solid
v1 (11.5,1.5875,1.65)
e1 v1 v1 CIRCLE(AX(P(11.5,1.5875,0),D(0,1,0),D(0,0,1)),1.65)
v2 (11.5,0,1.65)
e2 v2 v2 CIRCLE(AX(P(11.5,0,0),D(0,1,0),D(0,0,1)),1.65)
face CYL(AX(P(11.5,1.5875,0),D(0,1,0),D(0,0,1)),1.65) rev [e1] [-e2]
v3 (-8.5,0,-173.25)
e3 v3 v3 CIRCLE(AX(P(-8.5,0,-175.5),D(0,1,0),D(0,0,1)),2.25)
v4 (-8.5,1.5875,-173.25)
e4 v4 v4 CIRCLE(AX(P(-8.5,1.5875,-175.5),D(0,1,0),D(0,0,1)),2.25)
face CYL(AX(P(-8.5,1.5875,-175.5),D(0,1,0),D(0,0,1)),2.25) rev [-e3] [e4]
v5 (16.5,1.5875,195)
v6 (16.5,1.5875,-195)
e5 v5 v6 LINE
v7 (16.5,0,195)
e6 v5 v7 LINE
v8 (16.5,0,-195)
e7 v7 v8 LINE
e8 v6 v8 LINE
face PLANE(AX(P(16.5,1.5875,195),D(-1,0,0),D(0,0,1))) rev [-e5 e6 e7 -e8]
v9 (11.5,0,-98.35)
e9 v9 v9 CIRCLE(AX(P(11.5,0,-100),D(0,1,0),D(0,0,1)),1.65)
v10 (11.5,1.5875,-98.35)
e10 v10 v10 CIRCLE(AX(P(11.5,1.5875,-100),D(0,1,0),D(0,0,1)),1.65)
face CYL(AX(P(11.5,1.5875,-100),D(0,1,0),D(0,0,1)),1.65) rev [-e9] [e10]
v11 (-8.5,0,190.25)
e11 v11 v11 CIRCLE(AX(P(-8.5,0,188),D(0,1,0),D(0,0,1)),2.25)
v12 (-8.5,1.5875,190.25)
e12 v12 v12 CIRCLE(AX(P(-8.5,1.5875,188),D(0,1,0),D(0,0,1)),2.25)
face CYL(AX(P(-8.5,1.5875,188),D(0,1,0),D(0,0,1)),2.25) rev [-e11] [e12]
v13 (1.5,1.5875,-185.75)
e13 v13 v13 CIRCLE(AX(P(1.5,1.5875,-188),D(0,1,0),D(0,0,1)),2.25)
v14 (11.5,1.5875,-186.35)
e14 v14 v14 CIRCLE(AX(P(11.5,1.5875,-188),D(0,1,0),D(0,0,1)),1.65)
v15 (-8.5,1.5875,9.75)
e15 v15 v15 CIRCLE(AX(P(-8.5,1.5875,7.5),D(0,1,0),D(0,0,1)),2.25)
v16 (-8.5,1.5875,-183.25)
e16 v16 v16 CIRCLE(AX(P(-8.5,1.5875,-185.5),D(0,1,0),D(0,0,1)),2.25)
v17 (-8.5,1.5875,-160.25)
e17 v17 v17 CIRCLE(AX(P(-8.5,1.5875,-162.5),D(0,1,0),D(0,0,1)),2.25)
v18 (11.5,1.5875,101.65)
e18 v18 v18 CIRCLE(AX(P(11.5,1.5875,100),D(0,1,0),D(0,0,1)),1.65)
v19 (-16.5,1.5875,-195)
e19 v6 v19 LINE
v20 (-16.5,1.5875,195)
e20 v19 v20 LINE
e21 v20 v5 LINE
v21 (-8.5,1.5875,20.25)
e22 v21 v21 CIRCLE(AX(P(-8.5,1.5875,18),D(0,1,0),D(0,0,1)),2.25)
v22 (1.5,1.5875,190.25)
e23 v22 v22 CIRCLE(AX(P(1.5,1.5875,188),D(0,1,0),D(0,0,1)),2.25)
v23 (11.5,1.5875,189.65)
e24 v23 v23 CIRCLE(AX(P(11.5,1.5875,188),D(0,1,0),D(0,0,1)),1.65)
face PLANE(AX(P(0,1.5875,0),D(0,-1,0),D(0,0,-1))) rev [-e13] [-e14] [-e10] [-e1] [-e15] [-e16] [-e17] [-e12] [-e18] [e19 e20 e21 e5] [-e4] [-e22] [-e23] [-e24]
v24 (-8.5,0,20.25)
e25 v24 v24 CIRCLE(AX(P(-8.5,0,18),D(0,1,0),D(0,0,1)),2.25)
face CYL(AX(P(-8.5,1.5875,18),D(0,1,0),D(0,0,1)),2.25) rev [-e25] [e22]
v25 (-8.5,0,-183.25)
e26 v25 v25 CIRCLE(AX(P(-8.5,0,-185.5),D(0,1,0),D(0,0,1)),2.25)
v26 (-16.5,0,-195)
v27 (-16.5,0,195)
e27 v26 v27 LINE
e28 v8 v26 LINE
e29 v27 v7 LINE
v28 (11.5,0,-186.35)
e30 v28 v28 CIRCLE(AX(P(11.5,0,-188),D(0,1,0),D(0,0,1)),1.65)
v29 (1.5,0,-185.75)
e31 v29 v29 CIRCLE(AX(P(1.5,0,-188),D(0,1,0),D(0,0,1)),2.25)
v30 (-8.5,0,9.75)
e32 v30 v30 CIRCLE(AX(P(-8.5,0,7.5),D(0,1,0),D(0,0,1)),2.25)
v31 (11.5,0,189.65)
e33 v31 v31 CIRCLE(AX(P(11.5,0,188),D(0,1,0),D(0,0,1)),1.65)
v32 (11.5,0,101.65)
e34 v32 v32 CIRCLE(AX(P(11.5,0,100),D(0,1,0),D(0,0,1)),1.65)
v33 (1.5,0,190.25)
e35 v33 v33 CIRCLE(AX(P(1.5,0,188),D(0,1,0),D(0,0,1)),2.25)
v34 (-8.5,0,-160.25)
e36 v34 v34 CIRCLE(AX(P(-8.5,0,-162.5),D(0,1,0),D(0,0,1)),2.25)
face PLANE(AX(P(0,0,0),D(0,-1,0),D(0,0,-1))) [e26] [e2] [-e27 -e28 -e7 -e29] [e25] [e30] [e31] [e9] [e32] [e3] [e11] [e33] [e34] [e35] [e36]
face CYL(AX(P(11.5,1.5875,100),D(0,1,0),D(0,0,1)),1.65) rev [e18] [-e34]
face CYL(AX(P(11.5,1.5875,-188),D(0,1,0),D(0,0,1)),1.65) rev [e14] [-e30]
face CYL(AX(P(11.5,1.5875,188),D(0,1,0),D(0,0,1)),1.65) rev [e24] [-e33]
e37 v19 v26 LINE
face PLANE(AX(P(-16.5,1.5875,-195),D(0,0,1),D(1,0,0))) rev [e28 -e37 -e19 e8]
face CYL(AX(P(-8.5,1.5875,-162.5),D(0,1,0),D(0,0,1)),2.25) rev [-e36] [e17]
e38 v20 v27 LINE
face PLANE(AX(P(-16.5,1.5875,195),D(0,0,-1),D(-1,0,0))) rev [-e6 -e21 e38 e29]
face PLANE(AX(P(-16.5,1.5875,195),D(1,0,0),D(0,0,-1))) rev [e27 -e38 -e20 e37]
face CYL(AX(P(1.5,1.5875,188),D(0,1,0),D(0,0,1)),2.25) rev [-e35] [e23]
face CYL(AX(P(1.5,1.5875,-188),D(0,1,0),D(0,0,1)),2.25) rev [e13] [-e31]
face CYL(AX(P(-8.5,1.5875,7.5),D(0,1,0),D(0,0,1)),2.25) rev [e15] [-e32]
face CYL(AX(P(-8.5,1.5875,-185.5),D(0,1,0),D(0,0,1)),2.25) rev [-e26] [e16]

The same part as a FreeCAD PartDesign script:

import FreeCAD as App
import Part
import Sketcher

doc = App.newDocument("Part")
params = doc.addObject("Spreadsheet::Sheet", "Params")
for row, (alias, value) in enumerate([
    ("sketch1_width", "33 mm"),
    ("sketch1_height", "390 mm"),
    ("pad1_length", "1.5875 mm"),
    ("sketch2_diameter", "4.5 mm"),
    ("hole_diameter", "4.5 mm"),
    ("sketch3_diameter", "3.3 mm"),
    ("hole2_diameter", "3.3 mm"),
], start=1):
    params.set(f"A{row}", alias)
    params.set(f"B{row}", "=" + value)
    params.setAlias(f"B{row}", alias)

body = doc.addObject("PartDesign::Body", "Body")

# Sketch on XZ plane
sketch1 = body.newObject("Sketcher::SketchObject", "Sketch")
sketch1.AttachmentSupport = (doc.getObject("XZ_Plane"), [""])
sketch1.MapMode = "FlatFace"
sketch1.addGeometry([
    Part.LineSegment(App.Vector(-16.5, -195, 0), App.Vector(-16.5, 195, 0)),
    Part.LineSegment(App.Vector(-16.5, 195, 0), App.Vector(16.5, 195, 0)),
    Part.LineSegment(App.Vector(16.5, 195, 0), App.Vector(16.5, -195, 0)),
    Part.LineSegment(App.Vector(16.5, -195, 0), App.Vector(-16.5, -195, 0)),
], False)
sketch1.addConstraint([
    Sketcher.Constraint("Coincident", 0, 2, 1, 1),
    Sketcher.Constraint("Coincident", 1, 2, 2, 1),
    Sketcher.Constraint("Coincident", 2, 2, 3, 1),
    Sketcher.Constraint("Coincident", 3, 2, 0, 1),
    Sketcher.Constraint("Vertical", 0),
    Sketcher.Constraint("Horizontal", 1),
    Sketcher.Constraint("Vertical", 2),
    Sketcher.Constraint("Horizontal", 3),
    Sketcher.Constraint("Symmetric", 0, 2, 2, 2, -1, 1),
    Sketcher.Constraint("DistanceX", 1, 1, 1, 2, 33.0),
    Sketcher.Constraint("DistanceY", 0, 1, 0, 2, 390.0),
])
sketch1.setExpression("Constraints[9]", "Params.sketch1_width")
sketch1.setExpression("Constraints[10]", "Params.sketch1_height")
pad1 = body.newObject("PartDesign::Pad", "Pad")
pad1.Profile = sketch1
pad1.setExpression("Length", "Params.pad1_length")
pad1.Reversed = True

# Sketch on XZ plane
sketch2 = body.newObject("Sketcher::SketchObject", "Sketch001")
sketch2.AttachmentSupport = (doc.getObject("XZ_Plane"), [""])
sketch2.MapMode = "FlatFace"
sketch2.AttachmentOffset = App.Placement(App.Vector(0, 0, -1.5875), App.Rotation())
sketch2.addGeometry([
    Part.Circle(App.Vector(1.5, -188, 0), App.Vector(0, 0, 1), 2.25),  # 0
    Part.Circle(App.Vector(-8.5, -185.5, 0), App.Vector(0, 0, 1), 2.25),  # 1
    Part.Circle(App.Vector(-8.5, -175.5, 0), App.Vector(0, 0, 1), 2.25),  # 2
    Part.Circle(App.Vector(-8.5, -162.5, 0), App.Vector(0, 0, 1), 2.25),  # 3
    Part.Circle(App.Vector(-8.5, 7.5, 0), App.Vector(0, 0, 1), 2.25),  # 4
    Part.Circle(App.Vector(-8.5, 18, 0), App.Vector(0, 0, 1), 2.25),  # 5
    Part.Circle(App.Vector(-8.5, 188, 0), App.Vector(0, 0, 1), 2.25),  # 6
    Part.Circle(App.Vector(1.5, 188, 0), App.Vector(0, 0, 1), 2.25),  # 7
], False)
sketch2.addConstraint([
    Sketcher.Constraint("Equal", 0, 1),
    Sketcher.Constraint("Equal", 1, 2),
    Sketcher.Constraint("Equal", 2, 3),
    Sketcher.Constraint("Equal", 3, 4),
    Sketcher.Constraint("Equal", 4, 5),
    Sketcher.Constraint("Equal", 5, 6),
    Sketcher.Constraint("Equal", 6, 7),
    Sketcher.Constraint("Symmetric", 0, 3, 7, 3, -1),
    Sketcher.Constraint("Horizontal", 6, 3, 7, 3),
    Sketcher.Constraint("Vertical", 1, 3, 2, 3),
    Sketcher.Constraint("Vertical", 2, 3, 3, 3),
    Sketcher.Constraint("Vertical", 3, 3, 4, 3),
    Sketcher.Constraint("Vertical", 4, 3, 5, 3),
    Sketcher.Constraint("Vertical", 5, 3, 6, 3),
    Sketcher.Constraint("Diameter", 0, 4.5),
    Sketcher.Constraint("DistanceY", 0, 3, -1, 1, 188.0),
    Sketcher.Constraint("DistanceY", -1, 1, 5, 3, 18.0),
    Sketcher.Constraint("DistanceX", 1, 3, 0, 3, 10.0),
    Sketcher.Constraint("DistanceY", 1, 3, 2, 3, 10.0),
    Sketcher.Constraint("DistanceY", 2, 3, 3, 3, 13.0),
    Sketcher.Constraint("DistanceY", 3, 3, 4, 3, 170.0),
    Sketcher.Constraint("DistanceX", -1, 1, 0, 3, 1.5),
    Sketcher.Constraint("DistanceY", 1, 3, -1, 1, 185.5),
])
sketch2.setExpression("Constraints[14]", "Params.sketch2_diameter")
doc.recompute()
hole = body.newObject("PartDesign::Hole", "Hole")
hole.Profile = sketch2
hole.ThreadType = "None"
hole.setExpression("Diameter", "Params.hole_diameter")
hole.DepthType = "ThroughAll"
hole.Reversed = True

# Sketch on XZ plane
sketch3 = body.newObject("Sketcher::SketchObject", "Sketch002")
sketch3.AttachmentSupport = (doc.getObject("XZ_Plane"), [""])
sketch3.MapMode = "FlatFace"
sketch3.AttachmentOffset = App.Placement(App.Vector(0, 0, -1.5875), App.Rotation())
sketch3.addGeometry([
    Part.Circle(App.Vector(11.5, -188, 0), App.Vector(0, 0, 1), 1.65),  # 0
    Part.Circle(App.Vector(11.5, 188, 0), App.Vector(0, 0, 1), 1.65),  # 1
    Part.Circle(App.Vector(11.5, -100, 0), App.Vector(0, 0, 1), 1.65),  # 2
    Part.Circle(App.Vector(11.5, 100, 0), App.Vector(0, 0, 1), 1.65),  # 3
    Part.Circle(App.Vector(11.5, 0, 0), App.Vector(0, 0, 1), 1.65),  # 4
], False)
sketch3.addConstraint([
    Sketcher.Constraint("Equal", 0, 1),
    Sketcher.Constraint("Equal", 1, 2),
    Sketcher.Constraint("Equal", 2, 3),
    Sketcher.Constraint("Equal", 3, 4),
    Sketcher.Constraint("Symmetric", 0, 3, 1, 3, -1),
    Sketcher.Constraint("Symmetric", 2, 3, 3, 3, -1),
    Sketcher.Constraint("PointOnObject", 4, 3, -1),
    Sketcher.Constraint("Vertical", 1, 3, 2, 3),
    Sketcher.Constraint("Vertical", 3, 3, 4, 3),
    Sketcher.Constraint("Diameter", 0, 3.3),
    Sketcher.Constraint("DistanceY", 0, 3, -1, 1, 188.0),
    Sketcher.Constraint("DistanceY", 2, 3, -1, 1, 100.0),
    Sketcher.Constraint("DistanceX", -1, 1, 0, 3, 11.5),
])
sketch3.setExpression("Constraints[9]", "Params.sketch3_diameter")
doc.recompute()
hole2 = body.newObject("PartDesign::Hole", "Hole001")
hole2.Profile = sketch3
hole2.ThreadType = "None"
hole2.setExpression("Diameter", "Params.hole2_diameter")
hole2.DepthType = "ThroughAll"
hole2.Reversed = True

doc.recompute()
